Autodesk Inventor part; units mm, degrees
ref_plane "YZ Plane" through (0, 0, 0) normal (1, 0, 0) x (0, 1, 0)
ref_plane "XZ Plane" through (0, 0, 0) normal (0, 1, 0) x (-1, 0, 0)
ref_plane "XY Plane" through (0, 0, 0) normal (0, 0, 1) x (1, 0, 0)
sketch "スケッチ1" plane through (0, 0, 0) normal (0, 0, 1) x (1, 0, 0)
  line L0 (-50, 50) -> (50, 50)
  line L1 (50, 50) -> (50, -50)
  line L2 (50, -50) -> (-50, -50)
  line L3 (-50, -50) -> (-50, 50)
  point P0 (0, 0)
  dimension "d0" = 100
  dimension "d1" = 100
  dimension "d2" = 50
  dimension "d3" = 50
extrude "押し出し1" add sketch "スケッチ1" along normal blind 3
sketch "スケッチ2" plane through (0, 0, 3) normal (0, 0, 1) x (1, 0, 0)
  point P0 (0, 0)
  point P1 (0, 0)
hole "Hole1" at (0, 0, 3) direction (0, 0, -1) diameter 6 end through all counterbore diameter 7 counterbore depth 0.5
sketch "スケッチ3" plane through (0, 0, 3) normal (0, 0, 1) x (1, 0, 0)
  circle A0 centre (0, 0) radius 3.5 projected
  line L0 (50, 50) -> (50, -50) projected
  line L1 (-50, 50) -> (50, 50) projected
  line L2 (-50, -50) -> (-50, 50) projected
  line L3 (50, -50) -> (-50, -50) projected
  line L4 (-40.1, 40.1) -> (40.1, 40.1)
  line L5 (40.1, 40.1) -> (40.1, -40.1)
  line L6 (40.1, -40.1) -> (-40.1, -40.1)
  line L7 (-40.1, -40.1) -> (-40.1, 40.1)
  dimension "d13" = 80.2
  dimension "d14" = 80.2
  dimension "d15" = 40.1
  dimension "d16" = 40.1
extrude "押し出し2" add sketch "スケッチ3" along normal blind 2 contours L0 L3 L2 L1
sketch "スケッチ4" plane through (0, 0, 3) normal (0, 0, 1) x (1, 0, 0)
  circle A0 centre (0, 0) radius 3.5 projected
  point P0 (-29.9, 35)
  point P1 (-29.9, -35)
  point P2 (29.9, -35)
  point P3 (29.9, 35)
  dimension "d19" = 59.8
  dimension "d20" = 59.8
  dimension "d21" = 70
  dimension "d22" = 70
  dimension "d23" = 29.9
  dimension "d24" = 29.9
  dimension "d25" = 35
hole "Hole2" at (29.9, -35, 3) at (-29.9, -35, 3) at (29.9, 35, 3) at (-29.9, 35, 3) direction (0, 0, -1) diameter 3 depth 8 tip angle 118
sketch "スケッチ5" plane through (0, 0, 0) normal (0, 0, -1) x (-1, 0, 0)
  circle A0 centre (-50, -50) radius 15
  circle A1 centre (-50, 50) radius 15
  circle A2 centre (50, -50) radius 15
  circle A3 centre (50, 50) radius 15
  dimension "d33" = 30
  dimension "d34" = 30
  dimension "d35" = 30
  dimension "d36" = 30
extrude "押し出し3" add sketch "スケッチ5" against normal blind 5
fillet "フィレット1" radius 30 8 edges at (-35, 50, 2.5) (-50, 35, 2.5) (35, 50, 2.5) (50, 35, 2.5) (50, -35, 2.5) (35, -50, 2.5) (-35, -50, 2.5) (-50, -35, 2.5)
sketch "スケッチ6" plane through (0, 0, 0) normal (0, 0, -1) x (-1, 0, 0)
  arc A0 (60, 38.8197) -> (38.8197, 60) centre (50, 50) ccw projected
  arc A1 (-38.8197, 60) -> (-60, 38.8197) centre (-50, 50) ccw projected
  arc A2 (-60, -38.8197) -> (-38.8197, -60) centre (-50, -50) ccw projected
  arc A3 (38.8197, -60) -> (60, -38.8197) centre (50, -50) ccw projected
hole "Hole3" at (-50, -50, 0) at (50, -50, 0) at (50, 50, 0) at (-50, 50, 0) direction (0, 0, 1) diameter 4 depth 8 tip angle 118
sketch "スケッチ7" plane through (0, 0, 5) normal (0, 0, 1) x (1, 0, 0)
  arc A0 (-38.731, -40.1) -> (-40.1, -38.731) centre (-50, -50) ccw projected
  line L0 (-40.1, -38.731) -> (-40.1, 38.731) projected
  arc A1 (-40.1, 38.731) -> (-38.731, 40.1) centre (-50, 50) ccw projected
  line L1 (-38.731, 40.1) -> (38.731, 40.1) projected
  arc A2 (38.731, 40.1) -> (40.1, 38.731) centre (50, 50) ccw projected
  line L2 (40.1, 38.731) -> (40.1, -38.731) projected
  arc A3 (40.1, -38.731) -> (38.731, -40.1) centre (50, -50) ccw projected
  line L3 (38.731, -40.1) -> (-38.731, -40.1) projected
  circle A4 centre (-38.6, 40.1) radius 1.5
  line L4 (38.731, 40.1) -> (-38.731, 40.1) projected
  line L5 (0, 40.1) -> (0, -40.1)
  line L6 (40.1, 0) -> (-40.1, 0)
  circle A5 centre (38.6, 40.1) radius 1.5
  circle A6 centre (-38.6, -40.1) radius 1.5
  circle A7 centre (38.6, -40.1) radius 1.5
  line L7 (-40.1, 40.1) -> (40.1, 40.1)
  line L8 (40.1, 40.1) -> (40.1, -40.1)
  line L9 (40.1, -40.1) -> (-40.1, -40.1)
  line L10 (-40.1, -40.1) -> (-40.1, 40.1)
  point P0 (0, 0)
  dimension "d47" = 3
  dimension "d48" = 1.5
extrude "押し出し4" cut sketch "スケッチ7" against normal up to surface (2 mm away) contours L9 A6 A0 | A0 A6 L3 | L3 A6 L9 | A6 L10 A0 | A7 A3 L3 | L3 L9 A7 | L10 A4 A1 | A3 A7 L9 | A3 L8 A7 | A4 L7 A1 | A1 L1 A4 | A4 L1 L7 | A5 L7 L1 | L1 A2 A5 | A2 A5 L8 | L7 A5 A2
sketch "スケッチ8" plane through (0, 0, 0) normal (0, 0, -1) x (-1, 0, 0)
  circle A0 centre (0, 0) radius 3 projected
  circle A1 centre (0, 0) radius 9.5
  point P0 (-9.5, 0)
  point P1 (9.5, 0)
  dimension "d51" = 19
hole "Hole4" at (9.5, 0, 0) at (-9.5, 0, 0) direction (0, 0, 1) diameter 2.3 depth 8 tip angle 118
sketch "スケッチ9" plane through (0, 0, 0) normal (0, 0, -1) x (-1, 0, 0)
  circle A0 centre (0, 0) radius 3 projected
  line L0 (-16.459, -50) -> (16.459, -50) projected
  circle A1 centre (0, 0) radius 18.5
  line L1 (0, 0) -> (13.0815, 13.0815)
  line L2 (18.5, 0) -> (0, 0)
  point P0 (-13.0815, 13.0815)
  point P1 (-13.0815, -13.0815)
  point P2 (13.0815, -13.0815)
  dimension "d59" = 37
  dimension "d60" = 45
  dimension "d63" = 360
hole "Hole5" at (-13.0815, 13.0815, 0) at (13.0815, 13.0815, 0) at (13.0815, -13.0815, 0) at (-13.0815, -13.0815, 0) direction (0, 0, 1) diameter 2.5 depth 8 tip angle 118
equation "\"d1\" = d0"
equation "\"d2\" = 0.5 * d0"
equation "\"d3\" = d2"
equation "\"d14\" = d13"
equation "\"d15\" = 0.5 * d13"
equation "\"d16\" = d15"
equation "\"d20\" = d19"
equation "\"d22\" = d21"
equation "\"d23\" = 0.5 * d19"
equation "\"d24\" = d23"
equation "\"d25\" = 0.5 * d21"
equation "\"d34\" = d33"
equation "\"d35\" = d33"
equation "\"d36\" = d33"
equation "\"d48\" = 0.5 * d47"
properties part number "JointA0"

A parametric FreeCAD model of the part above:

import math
import FreeCAD as App
import Part
import Sketcher
from FreeCAD import Vector
Q = App.Units.Quantity


def edges_at(feature, points):
    """Names of the edges that pass closest to the given points."""
    edges = feature.Shape.Edges
    near = lambda p: min(range(len(edges)), key=lambda i: edges[i].distToShape(Part.Vertex(*p))[0])
    return sorted({f"Edge{near(p) + 1}" for p in points})


def add_polygon(sketch, points):
    """Adds a closed chain of lines whose ends are joined by coincident constraints."""
    first, n = sketch.GeometryCount, len(points)
    for a, b in zip(points, points[1:] + points[:1]):
        sketch.addGeometry(Part.LineSegment(App.Vector(*a, 0), App.Vector(*b, 0)), False)
    for i in range(n):
        sketch.addConstraint(Sketcher.Constraint("Coincident", first + i, 2, first + (i + 1) % n, 1))

doc = App.newDocument("Part")
body = doc.addObject("PartDesign::Body", "Body")

# Sketch on XY plane
sketch1 = doc.addObject("Sketcher::SketchObject", "Sketch")
body.addObject(sketch1)
sketch1.AttachmentSupport = (doc.XY_Plane, [""])
sketch1.MapMode = "FlatFace"
add_polygon(sketch1, [(50, 50), (-50, 50), (-50, -50), (50, -50)])  # lines 0-3
sketch1.addConstraint([
    Sketcher.Constraint("Horizontal", 0),
    Sketcher.Constraint("Vertical", 1),
    Sketcher.Constraint("Horizontal", 2),
    Sketcher.Constraint("Vertical", 3),
    Sketcher.Constraint("Symmetric", 0, 2, 2, 2, -1, 1),
    Sketcher.Constraint("Equal", 2, 1),
    Sketcher.Constraint("DistanceX", 0, 2, 0, 1, Q("100 mm")),
])
pad1 = doc.addObject("PartDesign::Pad", "Pad")
body.addObject(pad1)
pad1.Profile = sketch1
pad1.Length = 3

# Sketch on XY plane
sketch2 = doc.addObject("Sketcher::SketchObject", "Sketch001")
body.addObject(sketch2)
sketch2.AttachmentSupport = (doc.XY_Plane, [""])
sketch2.MapMode = "FlatFace"
sketch2.AttachmentOffset = App.Placement(Vector(0, 0, 3), App.Rotation())
sketch2.addGeometry(Part.Circle(Vector(0, 0, 0), Vector(0, 0, 1), 3), False)
sketch2.addConstraint([
    Sketcher.Constraint("Coincident", 0, 3, -1, 1),
    Sketcher.Constraint("Diameter", 0, Q("6 mm")),
])
doc.recompute()
hole = doc.addObject("PartDesign::Hole", "Hole")
body.addObject(hole)
hole.Profile = sketch2
hole.ThreadType = "None"
hole.Diameter = 6
hole.DepthType = "ThroughAll"
hole.HoleCutType = "Counterbore"
hole.HoleCutDiameter = 7
hole.HoleCutDepth = 0.5

# Sketch on XY plane
sketch3 = doc.addObject("Sketcher::SketchObject", "Sketch002")
body.addObject(sketch3)
sketch3.AttachmentSupport = (doc.XY_Plane, [""])
sketch3.MapMode = "FlatFace"
sketch3.AttachmentOffset = App.Placement(Vector(0, 0, 3), App.Rotation())
add_polygon(sketch3, [(50, -50), (50, 50), (-50, 50), (-50, -50)])  # lines 0-3
add_polygon(sketch3, [(-40, -40), (-40, 40), (40, 40), (40, -40)])  # lines 4-7
sketch3.addConstraint([
    Sketcher.Constraint("Vertical", 0),
    Sketcher.Constraint("Horizontal", 1),
    Sketcher.Constraint("Vertical", 2),
    Sketcher.Constraint("Horizontal", 3),
    Sketcher.Constraint("Vertical", 4),
    Sketcher.Constraint("Horizontal", 5),
    Sketcher.Constraint("Vertical", 6),
    Sketcher.Constraint("Horizontal", 7),
    Sketcher.Constraint("Symmetric", 0, 2, 2, 2, -1, 1),
    Sketcher.Constraint("Symmetric", 4, 2, 6, 2, -1, 1),
    Sketcher.Constraint("Equal", 3, 0),
    Sketcher.Constraint("Equal", 7, 4),
    Sketcher.Constraint("DistanceX", 5, 1, 5, 2, Q("80.2 mm")),
    Sketcher.Constraint("DistanceX", 1, 2, 1, 1, Q("100 mm")),
])
pad2 = doc.addObject("PartDesign::Pad", "Pad001")
body.addObject(pad2)
pad2.Profile = sketch3
pad2.Length = 2

# Sketch on XY plane
sketch4 = doc.addObject("Sketcher::SketchObject", "Sketch003")
body.addObject(sketch4)
sketch4.AttachmentSupport = (doc.XY_Plane, [""])
sketch4.MapMode = "FlatFace"
sketch4.AttachmentOffset = App.Placement(Vector(0, 0, 3), App.Rotation())
sketch4.addGeometry([
    Part.Circle(Vector(29.9, -35, 0), Vector(0, 0, 1), 1.5),
    Part.Circle(Vector(-29.9, -35, 0), Vector(0, 0, 1), 1.5),
    Part.Circle(Vector(29.9, 35, 0), Vector(0, 0, 1), 1.5),
    Part.Circle(Vector(-29.9, 35, 0), Vector(0, 0, 1), 1.5),
], False)
sketch4.addConstraint([
    Sketcher.Constraint("Equal", 0, 1),
    Sketcher.Constraint("Equal", 1, 2),
    Sketcher.Constraint("Equal", 2, 3),
    Sketcher.Constraint("Symmetric", 1, 3, 2, 3, -1, 1),
    Sketcher.Constraint("Symmetric", 0, 3, 3, 3, -1, 1),
    Sketcher.Constraint("Symmetric", 0, 3, 1, 3, -2),
    Sketcher.Constraint("Diameter", 0, Q("3 mm")),
    Sketcher.Constraint("DistanceY", 0, 3, -1, 1, Q("35 mm")),
    Sketcher.Constraint("DistanceX", -1, 1, 0, 3, Q("29.9 mm")),
])
doc.recompute()
hole2 = doc.addObject("PartDesign::Hole", "Hole001")
body.addObject(hole2)
hole2.Profile = sketch4
hole2.ThreadType = "None"
hole2.Diameter = 3
hole2.DepthType = "Dimension"
hole2.Depth = 8
hole2.DrillPoint = "Angled"
hole2.DrillPointAngle = 118

# Sketch on XY plane
sketch5 = doc.addObject("Sketcher::SketchObject", "Sketch004")
body.addObject(sketch5)
sketch5.AttachmentSupport = (doc.XY_Plane, [""])
sketch5.MapMode = "FlatFace"
sketch5.addGeometry([
    Part.Circle(Vector(50, -50, 0), Vector(0, 0, 1), 15),
    Part.Circle(Vector(50, 50, 0), Vector(0, 0, 1), 15),
    Part.Circle(Vector(-50, -50, 0), Vector(0, 0, 1), 15),
    Part.Circle(Vector(-50, 50, 0), Vector(0, 0, 1), 15),
], False)
sketch5.addConstraint([
    Sketcher.Constraint("Equal", 0, 1),
    Sketcher.Constraint("Equal", 1, 2),
    Sketcher.Constraint("Equal", 2, 3),
    Sketcher.Constraint("Symmetric", 1, 3, 2, 3, -1, 1),
    Sketcher.Constraint("Symmetric", 0, 3, 3, 3, -1, 1),
    Sketcher.Constraint("Symmetric", 0, 3, 2, 3, -2),
    Sketcher.Constraint("Diameter", 0, Q("30 mm")),
    Sketcher.Constraint("DistanceX", -1, 1, 0, 3, Q("50 mm")),
    Sketcher.Constraint("DistanceY", 0, 3, -1, 1, Q("50 mm")),
])
pad3 = doc.addObject("PartDesign::Pad", "Pad002")
body.addObject(pad3)
pad3.Profile = sketch5
pad3.Length = 5
doc.recompute()

fillet = doc.addObject("PartDesign::Fillet", "Fillet")
body.addObject(fillet)
fillet.Base = (pad3, edges_at(pad3, [
    (-35, 50, 2.5),
    (-50, 35, 2.5),
    (35, 50, 2.5),
    (50, 35, 2.5),
    (50, -35, 2.5),
    (35, -50, 2.5),
    (-35, -50, 2.5),
    (-50, -35, 2.5),
]))
fillet.Radius = 30

# Sketch on XY plane
sketch6 = doc.addObject("Sketcher::SketchObject", "Sketch005")
body.addObject(sketch6)
sketch6.AttachmentSupport = (doc.XY_Plane, [""])
sketch6.MapMode = "FlatFace"
sketch6.addGeometry([
    Part.Circle(Vector(-50, -50, 0), Vector(0, 0, 1), 2),
    Part.Circle(Vector(50, -50, 0), Vector(0, 0, 1), 2),
    Part.Circle(Vector(50, 50, 0), Vector(0, 0, 1), 2),
    Part.Circle(Vector(-50, 50, 0), Vector(0, 0, 1), 2),
], False)
sketch6.addConstraint([
    Sketcher.Constraint("Equal", 0, 1),
    Sketcher.Constraint("Equal", 1, 2),
    Sketcher.Constraint("Equal", 2, 3),
    Sketcher.Constraint("Symmetric", 0, 3, 2, 3, -1, 1),
    Sketcher.Constraint("Symmetric", 1, 3, 3, 3, -1, 1),
    Sketcher.Constraint("Symmetric", 0, 3, 1, 3, -2),
    Sketcher.Constraint("Diameter", 0, Q("4 mm")),
    Sketcher.Constraint("DistanceX", 0, 3, -1, 1, Q("50 mm")),
    Sketcher.Constraint("DistanceY", 0, 3, -1, 1, Q("50 mm")),
])
doc.recompute()
hole3 = doc.addObject("PartDesign::Hole", "Hole002")
body.addObject(hole3)
hole3.Profile = sketch6
hole3.ThreadType = "None"
hole3.Diameter = 4
hole3.DepthType = "Dimension"
hole3.Depth = 8
hole3.DrillPoint = "Angled"
hole3.DrillPointAngle = 118
hole3.Reversed = True

# Sketch on XY plane
sketch7 = doc.addObject("Sketcher::SketchObject", "Sketch006")
body.addObject(sketch7)
sketch7.AttachmentSupport = (doc.XY_Plane, [""])
sketch7.MapMode = "FlatFace"
sketch7.AttachmentOffset = App.Placement(Vector(0, 0, 5), App.Rotation())
sketch7.addGeometry([
    Part.ArcOfCircle(Part.Circle(Vector(-38.6, -40.1, 0), Vector(0, 0, 1), 1.5), math.radians(180), math.radians(498)),  # 0
    Part.ArcOfCircle(Part.Circle(Vector(-50, -50, 0), Vector(0, 0, 1), 15), math.radians(46.67), math.radians(48.7)),  # 1
    Part.LineSegment(Vector(-40.1, -38.7, 0), Vector(-40.1, -40.1, 0)),  # 2
    Part.ArcOfCircle(Part.Circle(Vector(38.6, -40.1, 0), Vector(0, 0, 1), 1.5), math.radians(42), math.radians(360)),  # 3
    Part.LineSegment(Vector(40.1, -40.1, 0), Vector(40.1, -38.7, 0)),  # 4
    Part.ArcOfCircle(Part.Circle(Vector(50, -50, 0), Vector(0, 0, 1), 15), math.radians(131.3), math.radians(133.33)),  # 5
    Part.LineSegment(Vector(-40.1, 40.1, 0), Vector(-40.1, 38.7, 0)),  # 6
    Part.ArcOfCircle(Part.Circle(Vector(-50, 50, 0), Vector(0, 0, 1), 15), math.radians(-48.7), math.radians(-46.67)),  # 7
    Part.ArcOfCircle(Part.Circle(Vector(-38.6, 40.1, 0), Vector(0, 0, 1), 1.5), math.radians(-138), math.radians(180)),  # 8
    Part.ArcOfCircle(Part.Circle(Vector(38.6, 40.1, 0), Vector(0, 0, 1), 1.5), math.radians(0), math.radians(318)),  # 9
    Part.ArcOfCircle(Part.Circle(Vector(50, 50, 0), Vector(0, 0, 1), 15), math.radians(-133.33), math.radians(-131.3)),  # 10
    Part.LineSegment(Vector(40.1, 38.7, 0), Vector(40.1, 40.1, 0)),  # 11
], False)
sketch7.addConstraint([
    Sketcher.Constraint("Coincident", 0, 2, 1, 1),
    Sketcher.Constraint("Coincident", 1, 2, 2, 1),
    Sketcher.Constraint("Tangent", 2, 2, 0, 1),
    Sketcher.Constraint("Tangent", 3, 2, 4, 1),
    Sketcher.Constraint("Coincident", 4, 2, 5, 1),
    Sketcher.Constraint("Coincident", 5, 2, 3, 1),
    Sketcher.Constraint("Coincident", 6, 2, 7, 1),
    Sketcher.Constraint("Coincident", 7, 2, 8, 1),
    Sketcher.Constraint("Tangent", 8, 2, 6, 1),
    Sketcher.Constraint("Coincident", 9, 2, 10, 1),
    Sketcher.Constraint("Coincident", 10, 2, 11, 1),
    Sketcher.Constraint("Tangent", 11, 2, 9, 1),
    Sketcher.Constraint("Vertical", 2),
    Sketcher.Constraint("Vertical", 4),
    Sketcher.Constraint("Vertical", 6),
    Sketcher.Constraint("Vertical", 11),
    Sketcher.Constraint("Equal", 0, 3),
    Sketcher.Constraint("Equal", 1, 5),
    Sketcher.Constraint("Equal", 5, 7),
    Sketcher.Constraint("Equal", 3, 8),
    Sketcher.Constraint("Equal", 8, 9),
    Sketcher.Constraint("Equal", 7, 10),
    Sketcher.Constraint("Symmetric", 5, 3, 7, 3, -1, 1),
    Sketcher.Constraint("Symmetric", 3, 3, 8, 3, -1, 1),
    Sketcher.Constraint("Symmetric", 0, 3, 9, 3, -1, 1),
    Sketcher.Constraint("Symmetric", 1, 3, 10, 3, -1, 1),
    Sketcher.Constraint("Symmetric", 0, 3, 3, 3, -2),
    Sketcher.Constraint("Symmetric", 1, 3, 5, 3, -2),
    Sketcher.Constraint("Radius", 0, Q("1.5 mm")),
    Sketcher.Constraint("Radius", 1, Q("15 mm")),
    Sketcher.Constraint("DistanceX", 1, 3, -1, 1, Q("50 mm")),
    Sketcher.Constraint("DistanceY", 1, 3, -1, 1, Q("50 mm")),
    Sketcher.Constraint("DistanceX", 0, 3, -1, 1, Q("38.6 mm")),
    Sketcher.Constraint("DistanceY", 0, 3, -1, 1, Q("40.1 mm")),
])
pocket1 = doc.addObject("PartDesign::Pocket", "Pocket")
body.addObject(pocket1)
pocket1.Profile = sketch7
pocket1.Length = 2

# Sketch on XY plane
sketch8 = doc.addObject("Sketcher::SketchObject", "Sketch007")
body.addObject(sketch8)
sketch8.AttachmentSupport = (doc.XY_Plane, [""])
sketch8.MapMode = "FlatFace"
sketch8.addGeometry([
    Part.Circle(Vector(9.5, 0, 0), Vector(0, 0, 1), 1.1),
    Part.Circle(Vector(-9.5, 0, 0), Vector(0, 0, 1), 1.1),
], False)
sketch8.addConstraint([
    Sketcher.Constraint("Equal", 0, 1),
    Sketcher.Constraint("Symmetric", 0, 3, 1, 3, -1, 1),
    Sketcher.Constraint("PointOnObject", 0, 3, -1),
    Sketcher.Constraint("Diameter", 0, Q("2.3 mm")),
    Sketcher.Constraint("DistanceX", 1, 3, 0, 3, Q("19 mm")),
])
doc.recompute()
hole4 = doc.addObject("PartDesign::Hole", "Hole003")
body.addObject(hole4)
hole4.Profile = sketch8
hole4.ThreadType = "None"
hole4.Diameter = 2.3
hole4.DepthType = "Dimension"
hole4.Depth = 8
hole4.DrillPoint = "Angled"
hole4.DrillPointAngle = 118
hole4.Reversed = True

# Sketch on XY plane
sketch9 = doc.addObject("Sketcher::SketchObject", "Sketch008")
body.addObject(sketch9)
sketch9.AttachmentSupport = (doc.XY_Plane, [""])
sketch9.MapMode = "FlatFace"
sketch9.addGeometry([
    Part.Circle(Vector(-13.1, 13.1, 0), Vector(0, 0, 1), 1.2),
    Part.Circle(Vector(13.1, 13.1, 0), Vector(0, 0, 1), 1.2),
    Part.Circle(Vector(13.1, -13.1, 0), Vector(0, 0, 1), 1.2),
    Part.Circle(Vector(-13.1, -13.1, 0), Vector(0, 0, 1), 1.2),
], False)
sketch9.addConstraint([
    Sketcher.Constraint("Equal", 0, 1),
    Sketcher.Constraint("Equal", 1, 2),
    Sketcher.Constraint("Equal", 2, 3),
    Sketcher.Constraint("Symmetric", 0, 3, 2, 3, -1, 1),
    Sketcher.Constraint("Symmetric", 1, 3, 3, 3, -1, 1),
    Sketcher.Constraint("Symmetric", 0, 3, 1, 3, -2),
    Sketcher.Constraint("Diameter", 0, Q("2.5 mm")),
    Sketcher.Constraint("DistanceX", 0, 3, 1, 3, Q("26.163 mm")),
    Sketcher.Constraint("DistanceY", 2, 3, 1, 3, Q("26.163 mm")),
])
doc.recompute()
hole5 = doc.addObject("PartDesign::Hole", "Hole004")
body.addObject(hole5)
hole5.Profile = sketch9
hole5.ThreadType = "None"
hole5.Diameter = 2.5
hole5.DepthType = "Dimension"
hole5.Depth = 8
hole5.DrillPoint = "Angled"
hole5.DrillPointAngle = 118
hole5.Reversed = True

doc.recompute()
